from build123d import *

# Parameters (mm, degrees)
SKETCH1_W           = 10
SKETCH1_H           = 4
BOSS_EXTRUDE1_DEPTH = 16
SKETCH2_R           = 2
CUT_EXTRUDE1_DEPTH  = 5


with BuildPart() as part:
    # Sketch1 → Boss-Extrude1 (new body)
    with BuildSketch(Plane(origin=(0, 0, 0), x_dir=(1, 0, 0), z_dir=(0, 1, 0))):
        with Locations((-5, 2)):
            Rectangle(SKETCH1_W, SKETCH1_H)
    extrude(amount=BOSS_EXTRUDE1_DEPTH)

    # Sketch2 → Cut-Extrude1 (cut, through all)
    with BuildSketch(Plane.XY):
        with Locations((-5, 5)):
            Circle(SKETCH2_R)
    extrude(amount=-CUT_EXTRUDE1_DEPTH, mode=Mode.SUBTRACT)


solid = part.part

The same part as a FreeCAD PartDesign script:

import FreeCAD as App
import Part
import Sketcher

V = App.Vector
Q = App.Units.Quantity

doc = App.newDocument("Part")
params = doc.addObject("Spreadsheet::Sheet", "Params")
for row, (alias, value) in enumerate([
    ("sketch1_width", "10 mm"),
    ("sketch1_height", "4 mm"),
    ("pad1_length", "16 mm"),
    ("sketch2_diameter", "4 mm"),
], start=1):
    params.set(f"A{row}", alias)
    params.set(f"B{row}", "=" + value)
    params.setAlias(f"B{row}", alias)

body = doc.addObject("PartDesign::Body", "Body")

sketch1 = body.newObject("Sketcher::SketchObject", "Sketch")
sketch1.AttachmentSupport = (doc.getObject("XZ_Plane"), [""])
sketch1.MapMode = "FlatFace"
sketch1.addGeometry(Part.LineSegment(V(-10, -4, 0), V(-10, 0, 0)), False)
sketch1.addGeometry(Part.LineSegment(V(-10, 0, 0), V(0, 0, 0)), False)
sketch1.addGeometry(Part.LineSegment(V(0, 0, 0), V(0, -4, 0)), False)
sketch1.addGeometry(Part.LineSegment(V(0, -4, 0), V(-10, -4, 0)), False)
sketch1.addConstraint(Sketcher.Constraint("Coincident", 0, 2, 1, 1))
sketch1.addConstraint(Sketcher.Constraint("Coincident", 1, 2, 2, 1))
sketch1.addConstraint(Sketcher.Constraint("Coincident", 2, 2, 3, 1))
sketch1.addConstraint(Sketcher.Constraint("Coincident", 3, 2, 0, 1))
sketch1.addConstraint(Sketcher.Constraint("Vertical", 0))
sketch1.addConstraint(Sketcher.Constraint("Horizontal", 1))
sketch1.addConstraint(Sketcher.Constraint("Vertical", 2))
sketch1.addConstraint(Sketcher.Constraint("Horizontal", 3))
sketch1.addConstraint(Sketcher.Constraint("Coincident", 1, 2, -1, 1))
sketch1.addConstraint(Sketcher.Constraint("DistanceX", 1, 1, 1, 2, Q("10 mm")))
sketch1.addConstraint(Sketcher.Constraint("DistanceY", 0, 1, 0, 2, Q("4 mm")))
sketch1.setExpression("Constraints[9]", "Params.sketch1_width")
sketch1.setExpression("Constraints[10]", "Params.sketch1_height")
pad1 = body.newObject("PartDesign::Pad", "Pad")
pad1.Profile = sketch1
pad1.setExpression("Length", "Params.pad1_length")
pad1.Reversed = True

sketch2 = body.newObject("Sketcher::SketchObject", "Sketch001")
sketch2.AttachmentSupport = (doc.getObject("XY_Plane"), [""])
sketch2.MapMode = "FlatFace"
sketch2.addGeometry(Part.Circle(V(-5, 5, 0), V(0, 0, 1), 2), False)
sketch2.addConstraint(Sketcher.Constraint("Diameter", 0, Q("4 mm")))
sketch2.addConstraint(Sketcher.Constraint("DistanceX", 0, 3, -1, 1, Q("5 mm")))
sketch2.addConstraint(Sketcher.Constraint("DistanceY", -1, 1, 0, 3, Q("5 mm")))
sketch2.setExpression("Constraints[0]", "Params.sketch2_diameter")
pocket1 = body.newObject("PartDesign::Pocket", "Pocket")
pocket1.Profile = sketch2
pocket1.Type = "ThroughAll"

doc.recompute()
